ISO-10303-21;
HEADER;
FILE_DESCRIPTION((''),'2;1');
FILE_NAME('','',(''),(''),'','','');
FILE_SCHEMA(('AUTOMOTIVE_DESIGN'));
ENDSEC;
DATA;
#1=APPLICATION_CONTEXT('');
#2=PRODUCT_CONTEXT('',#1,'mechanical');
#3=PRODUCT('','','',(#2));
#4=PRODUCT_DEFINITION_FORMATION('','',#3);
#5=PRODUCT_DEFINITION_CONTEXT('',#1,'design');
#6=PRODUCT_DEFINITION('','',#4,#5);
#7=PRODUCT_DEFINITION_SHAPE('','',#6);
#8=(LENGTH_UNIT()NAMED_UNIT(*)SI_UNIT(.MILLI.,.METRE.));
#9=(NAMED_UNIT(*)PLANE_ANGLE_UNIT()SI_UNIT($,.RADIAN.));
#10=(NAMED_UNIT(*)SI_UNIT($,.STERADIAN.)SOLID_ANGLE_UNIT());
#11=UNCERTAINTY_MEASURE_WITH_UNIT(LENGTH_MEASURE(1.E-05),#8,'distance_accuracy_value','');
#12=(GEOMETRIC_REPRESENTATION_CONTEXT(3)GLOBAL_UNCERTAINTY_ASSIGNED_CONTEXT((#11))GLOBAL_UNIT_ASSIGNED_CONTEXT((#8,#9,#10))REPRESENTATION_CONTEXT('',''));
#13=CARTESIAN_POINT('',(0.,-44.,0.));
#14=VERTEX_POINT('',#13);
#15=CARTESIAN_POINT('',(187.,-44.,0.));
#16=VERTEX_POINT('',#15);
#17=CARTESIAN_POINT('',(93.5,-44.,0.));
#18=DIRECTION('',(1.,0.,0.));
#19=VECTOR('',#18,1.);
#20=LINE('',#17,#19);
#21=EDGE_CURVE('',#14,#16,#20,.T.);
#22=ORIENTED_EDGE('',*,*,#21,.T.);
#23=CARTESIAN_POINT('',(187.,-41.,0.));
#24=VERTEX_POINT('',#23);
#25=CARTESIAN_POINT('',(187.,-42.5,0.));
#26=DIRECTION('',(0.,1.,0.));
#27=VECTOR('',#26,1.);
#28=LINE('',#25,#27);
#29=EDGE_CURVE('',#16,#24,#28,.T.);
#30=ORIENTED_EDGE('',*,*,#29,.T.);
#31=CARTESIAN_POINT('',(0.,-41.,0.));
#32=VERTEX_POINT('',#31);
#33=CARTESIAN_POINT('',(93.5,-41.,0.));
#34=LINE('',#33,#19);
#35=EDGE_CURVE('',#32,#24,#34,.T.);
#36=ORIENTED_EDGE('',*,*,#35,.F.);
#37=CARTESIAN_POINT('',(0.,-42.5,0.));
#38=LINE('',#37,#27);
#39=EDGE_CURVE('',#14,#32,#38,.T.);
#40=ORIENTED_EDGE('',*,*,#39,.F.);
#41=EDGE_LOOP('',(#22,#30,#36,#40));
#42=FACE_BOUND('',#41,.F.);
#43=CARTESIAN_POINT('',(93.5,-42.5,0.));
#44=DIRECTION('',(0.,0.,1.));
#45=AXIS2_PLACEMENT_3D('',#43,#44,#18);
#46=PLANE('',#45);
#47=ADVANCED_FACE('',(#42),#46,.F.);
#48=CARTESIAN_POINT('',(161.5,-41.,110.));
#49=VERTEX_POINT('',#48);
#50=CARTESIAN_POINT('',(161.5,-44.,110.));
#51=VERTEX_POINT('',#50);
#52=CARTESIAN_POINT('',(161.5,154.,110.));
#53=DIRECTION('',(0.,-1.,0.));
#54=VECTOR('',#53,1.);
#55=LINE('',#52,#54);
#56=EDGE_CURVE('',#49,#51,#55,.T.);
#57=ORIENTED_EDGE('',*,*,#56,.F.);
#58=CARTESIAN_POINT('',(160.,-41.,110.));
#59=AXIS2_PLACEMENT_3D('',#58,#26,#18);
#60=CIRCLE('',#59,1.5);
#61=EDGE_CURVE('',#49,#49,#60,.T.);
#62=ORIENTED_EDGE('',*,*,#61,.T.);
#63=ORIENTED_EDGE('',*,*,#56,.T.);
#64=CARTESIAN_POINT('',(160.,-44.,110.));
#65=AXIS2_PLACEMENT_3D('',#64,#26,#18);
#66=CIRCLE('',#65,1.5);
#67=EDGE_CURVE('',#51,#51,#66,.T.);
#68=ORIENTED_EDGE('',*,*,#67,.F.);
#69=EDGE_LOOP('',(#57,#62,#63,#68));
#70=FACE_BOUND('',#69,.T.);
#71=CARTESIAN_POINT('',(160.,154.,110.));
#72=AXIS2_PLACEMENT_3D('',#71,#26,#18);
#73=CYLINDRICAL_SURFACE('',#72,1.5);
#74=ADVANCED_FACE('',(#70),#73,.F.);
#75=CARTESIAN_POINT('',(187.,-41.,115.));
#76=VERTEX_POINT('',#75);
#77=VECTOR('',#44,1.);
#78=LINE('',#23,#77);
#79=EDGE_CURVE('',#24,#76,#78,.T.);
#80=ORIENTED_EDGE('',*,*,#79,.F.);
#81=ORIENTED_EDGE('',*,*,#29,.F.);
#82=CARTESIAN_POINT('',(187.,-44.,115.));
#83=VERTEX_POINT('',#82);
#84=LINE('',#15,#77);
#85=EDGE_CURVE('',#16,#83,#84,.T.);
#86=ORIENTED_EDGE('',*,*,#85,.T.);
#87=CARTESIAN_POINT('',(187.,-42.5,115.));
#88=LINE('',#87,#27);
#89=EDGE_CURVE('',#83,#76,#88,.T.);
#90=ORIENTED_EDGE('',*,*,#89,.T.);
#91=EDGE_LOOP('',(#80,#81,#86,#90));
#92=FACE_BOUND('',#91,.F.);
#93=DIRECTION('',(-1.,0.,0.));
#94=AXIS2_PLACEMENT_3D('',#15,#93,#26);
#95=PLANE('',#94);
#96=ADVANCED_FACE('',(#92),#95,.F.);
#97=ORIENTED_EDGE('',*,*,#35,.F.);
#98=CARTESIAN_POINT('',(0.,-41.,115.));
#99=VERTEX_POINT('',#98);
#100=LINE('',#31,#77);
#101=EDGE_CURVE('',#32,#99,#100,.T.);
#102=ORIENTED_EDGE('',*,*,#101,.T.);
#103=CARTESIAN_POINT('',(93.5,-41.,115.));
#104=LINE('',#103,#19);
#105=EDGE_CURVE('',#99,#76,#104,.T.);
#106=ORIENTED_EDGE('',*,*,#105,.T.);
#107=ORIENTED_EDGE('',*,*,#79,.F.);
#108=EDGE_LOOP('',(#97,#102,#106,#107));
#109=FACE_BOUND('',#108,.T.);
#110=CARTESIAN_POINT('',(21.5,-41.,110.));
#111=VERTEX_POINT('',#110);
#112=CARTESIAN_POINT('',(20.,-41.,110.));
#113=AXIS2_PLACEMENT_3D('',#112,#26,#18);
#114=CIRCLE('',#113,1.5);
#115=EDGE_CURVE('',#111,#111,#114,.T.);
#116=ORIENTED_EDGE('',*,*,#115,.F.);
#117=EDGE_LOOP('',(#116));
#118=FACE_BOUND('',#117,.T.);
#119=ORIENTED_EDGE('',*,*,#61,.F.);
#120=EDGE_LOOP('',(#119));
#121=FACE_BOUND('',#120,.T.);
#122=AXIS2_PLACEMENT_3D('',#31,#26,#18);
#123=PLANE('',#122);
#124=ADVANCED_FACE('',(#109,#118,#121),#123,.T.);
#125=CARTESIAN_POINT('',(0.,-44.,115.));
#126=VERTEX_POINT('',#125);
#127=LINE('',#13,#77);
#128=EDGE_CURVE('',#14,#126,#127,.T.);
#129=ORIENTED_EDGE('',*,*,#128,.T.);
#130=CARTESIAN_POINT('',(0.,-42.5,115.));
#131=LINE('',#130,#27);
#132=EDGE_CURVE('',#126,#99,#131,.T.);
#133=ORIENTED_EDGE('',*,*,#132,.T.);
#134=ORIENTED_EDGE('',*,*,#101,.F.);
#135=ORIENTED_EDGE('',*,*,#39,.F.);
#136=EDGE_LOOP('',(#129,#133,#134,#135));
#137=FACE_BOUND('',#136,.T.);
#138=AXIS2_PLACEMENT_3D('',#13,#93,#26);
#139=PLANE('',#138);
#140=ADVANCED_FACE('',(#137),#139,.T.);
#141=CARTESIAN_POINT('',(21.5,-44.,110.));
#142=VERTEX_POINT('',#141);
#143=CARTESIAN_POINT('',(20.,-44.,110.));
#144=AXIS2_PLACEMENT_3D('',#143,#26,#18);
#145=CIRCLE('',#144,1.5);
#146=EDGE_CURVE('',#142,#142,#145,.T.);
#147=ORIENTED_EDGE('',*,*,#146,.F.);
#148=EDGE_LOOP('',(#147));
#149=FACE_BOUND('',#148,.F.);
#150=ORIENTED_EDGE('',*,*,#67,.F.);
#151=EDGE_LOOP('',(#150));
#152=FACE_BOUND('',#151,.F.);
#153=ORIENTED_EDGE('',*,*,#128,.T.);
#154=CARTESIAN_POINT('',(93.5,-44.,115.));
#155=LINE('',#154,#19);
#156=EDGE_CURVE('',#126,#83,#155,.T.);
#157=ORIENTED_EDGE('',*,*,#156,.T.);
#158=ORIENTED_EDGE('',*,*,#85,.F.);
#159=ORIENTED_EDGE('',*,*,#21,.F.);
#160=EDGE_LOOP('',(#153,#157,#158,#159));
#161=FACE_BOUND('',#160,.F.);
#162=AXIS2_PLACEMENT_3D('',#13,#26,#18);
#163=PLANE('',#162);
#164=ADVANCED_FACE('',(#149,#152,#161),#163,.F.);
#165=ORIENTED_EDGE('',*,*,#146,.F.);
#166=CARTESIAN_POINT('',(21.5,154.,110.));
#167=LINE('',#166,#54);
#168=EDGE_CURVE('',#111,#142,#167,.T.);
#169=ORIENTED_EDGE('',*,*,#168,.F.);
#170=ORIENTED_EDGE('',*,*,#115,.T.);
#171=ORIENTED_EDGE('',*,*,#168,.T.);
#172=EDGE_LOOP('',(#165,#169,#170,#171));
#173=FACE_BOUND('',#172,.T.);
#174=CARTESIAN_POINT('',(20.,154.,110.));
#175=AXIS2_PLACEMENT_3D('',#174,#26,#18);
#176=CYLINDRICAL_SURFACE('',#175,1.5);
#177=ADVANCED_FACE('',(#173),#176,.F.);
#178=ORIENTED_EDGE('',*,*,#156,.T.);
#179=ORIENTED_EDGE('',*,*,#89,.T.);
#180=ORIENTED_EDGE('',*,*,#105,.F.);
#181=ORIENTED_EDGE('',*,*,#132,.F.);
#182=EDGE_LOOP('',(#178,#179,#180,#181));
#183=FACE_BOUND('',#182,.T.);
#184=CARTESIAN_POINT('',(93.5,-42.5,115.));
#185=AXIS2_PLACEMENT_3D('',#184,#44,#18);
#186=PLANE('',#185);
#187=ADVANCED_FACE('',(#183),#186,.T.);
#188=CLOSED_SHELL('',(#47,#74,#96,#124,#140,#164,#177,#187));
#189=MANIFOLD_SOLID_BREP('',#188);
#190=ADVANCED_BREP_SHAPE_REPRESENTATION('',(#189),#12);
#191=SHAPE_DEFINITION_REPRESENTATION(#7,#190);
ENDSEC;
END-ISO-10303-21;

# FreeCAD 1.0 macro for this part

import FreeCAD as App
import Part
import Sketcher

V = App.Vector


def add_polygon(sketch, points):
    """Adds a closed chain of lines whose ends are joined by coincident constraints."""
    first, n = sketch.GeometryCount, len(points)
    for a, b in zip(points, points[1:] + points[:1]):
        sketch.addGeometry(Part.LineSegment(App.Vector(*a, 0), App.Vector(*b, 0)), False)
    for i in range(n):
        sketch.addConstraint(Sketcher.Constraint("Coincident", first + i, 2, first + (i + 1) % n, 1))

doc = App.newDocument("Part")
body = doc.addObject("PartDesign::Body", "Body")

# Sketch on XY plane
sketch1 = body.newObject("Sketcher::SketchObject", "Sketch")
sketch1.AttachmentSupport = (doc.getObject("XY_Plane"), [""])
sketch1.MapMode = "FlatFace"
sketch1.addGeometry(Part.Circle(V(0, 0, 0), V(0, 0, 1), 1.5), False)
sketch1.addConstraint([
    Sketcher.Constraint("Coincident", 0, 3, -1, 1),
    Sketcher.Constraint("Diameter", 0, 3.0),
])
pad1 = body.newObject("PartDesign::Pad", "Pad")
pad1.Profile = sketch1
pad1.Length = 200
body2 = doc.addObject("PartDesign::Body", "Body001")
doc.recompute()

body.Placement = App.Placement(V(0, 0, 0), App.Rotation(V(1, 0, 0), 90))
boolean = body2.newObject("PartDesign::Boolean", "Boolean")
boolean.Type = "Fuse"
boolean.addObjects([body])
body3 = doc.addObject("PartDesign::Body", "Body002")
doc.recompute()

body2.Placement = App.Placement(V(160, 154, 110), App.Rotation(V(0, 0, 1), 0))
boolean2 = body3.newObject("PartDesign::Boolean", "Boolean001")
boolean2.Type = "Fuse"
boolean2.addObjects([body2])
body4 = doc.addObject("PartDesign::Body", "Body003")

# Sketch on XY plane
sketch2 = body4.newObject("Sketcher::SketchObject", "Sketch001")
sketch2.AttachmentSupport = (doc.getObject("XY_Plane003"), [""])
sketch2.MapMode = "FlatFace"
sketch2.addGeometry(Part.Circle(V(0, 0, 0), V(0, 0, 1), 1.5), False)
sketch2.addConstraint([
    Sketcher.Constraint("Coincident", 0, 3, -1, 1),
    Sketcher.Constraint("Diameter", 0, 3.0),
])
pad2 = body4.newObject("PartDesign::Pad", "Pad001")
pad2.Profile = sketch2
pad2.Length = 200
body5 = doc.addObject("PartDesign::Body", "Body004")
doc.recompute()

body4.Placement = App.Placement(V(0, 0, 0), App.Rotation(V(1, 0, 0), 90))
boolean3 = body5.newObject("PartDesign::Boolean", "Boolean002")
boolean3.Type = "Fuse"
boolean3.addObjects([body4])
body6 = doc.addObject("PartDesign::Body", "Body005")
doc.recompute()

body5.Placement = App.Placement(V(20, 154, 110), App.Rotation(V(0, 0, 1), 0))
boolean4 = body6.newObject("PartDesign::Boolean", "Boolean003")
boolean4.Type = "Fuse"
boolean4.addObjects([body5])
body7 = doc.addObject("PartDesign::Body", "Body006")

# Sketch on XY plane
sketch3 = body7.newObject("Sketcher::SketchObject", "Sketch002")
sketch3.AttachmentSupport = (doc.getObject("XY_Plane006"), [""])
sketch3.MapMode = "FlatFace"
add_polygon(sketch3, [(0, -41), (0, -44), (187, -44), (187, -41)])  # lines 0-3
sketch3.addConstraint([
    Sketcher.Constraint("Vertical", 0),
    Sketcher.Constraint("Horizontal", 1),
    Sketcher.Constraint("Vertical", 2),
    Sketcher.Constraint("Horizontal", 3),
    Sketcher.Constraint("PointOnObject", 0, 2, -2),
    Sketcher.Constraint("DistanceX", 1, 1, 1, 2, 187.0),
    Sketcher.Constraint("DistanceY", 0, 2, 0, 1, 3.0),
    Sketcher.Constraint("DistanceY", 0, 2, -1, 1, 44.0),
])
pad3 = body7.newObject("PartDesign::Pad", "Pad002")
pad3.Profile = sketch3
pad3.Length = 115
doc.recompute()

boolean5 = body7.newObject("PartDesign::Boolean", "Boolean004")
boolean5.Type = "Cut"
boolean5.addObjects([body6])
doc.recompute()

boolean6 = body7.newObject("PartDesign::Boolean", "Boolean005")
boolean6.Type = "Cut"
boolean6.addObjects([body3])

doc.recompute()
